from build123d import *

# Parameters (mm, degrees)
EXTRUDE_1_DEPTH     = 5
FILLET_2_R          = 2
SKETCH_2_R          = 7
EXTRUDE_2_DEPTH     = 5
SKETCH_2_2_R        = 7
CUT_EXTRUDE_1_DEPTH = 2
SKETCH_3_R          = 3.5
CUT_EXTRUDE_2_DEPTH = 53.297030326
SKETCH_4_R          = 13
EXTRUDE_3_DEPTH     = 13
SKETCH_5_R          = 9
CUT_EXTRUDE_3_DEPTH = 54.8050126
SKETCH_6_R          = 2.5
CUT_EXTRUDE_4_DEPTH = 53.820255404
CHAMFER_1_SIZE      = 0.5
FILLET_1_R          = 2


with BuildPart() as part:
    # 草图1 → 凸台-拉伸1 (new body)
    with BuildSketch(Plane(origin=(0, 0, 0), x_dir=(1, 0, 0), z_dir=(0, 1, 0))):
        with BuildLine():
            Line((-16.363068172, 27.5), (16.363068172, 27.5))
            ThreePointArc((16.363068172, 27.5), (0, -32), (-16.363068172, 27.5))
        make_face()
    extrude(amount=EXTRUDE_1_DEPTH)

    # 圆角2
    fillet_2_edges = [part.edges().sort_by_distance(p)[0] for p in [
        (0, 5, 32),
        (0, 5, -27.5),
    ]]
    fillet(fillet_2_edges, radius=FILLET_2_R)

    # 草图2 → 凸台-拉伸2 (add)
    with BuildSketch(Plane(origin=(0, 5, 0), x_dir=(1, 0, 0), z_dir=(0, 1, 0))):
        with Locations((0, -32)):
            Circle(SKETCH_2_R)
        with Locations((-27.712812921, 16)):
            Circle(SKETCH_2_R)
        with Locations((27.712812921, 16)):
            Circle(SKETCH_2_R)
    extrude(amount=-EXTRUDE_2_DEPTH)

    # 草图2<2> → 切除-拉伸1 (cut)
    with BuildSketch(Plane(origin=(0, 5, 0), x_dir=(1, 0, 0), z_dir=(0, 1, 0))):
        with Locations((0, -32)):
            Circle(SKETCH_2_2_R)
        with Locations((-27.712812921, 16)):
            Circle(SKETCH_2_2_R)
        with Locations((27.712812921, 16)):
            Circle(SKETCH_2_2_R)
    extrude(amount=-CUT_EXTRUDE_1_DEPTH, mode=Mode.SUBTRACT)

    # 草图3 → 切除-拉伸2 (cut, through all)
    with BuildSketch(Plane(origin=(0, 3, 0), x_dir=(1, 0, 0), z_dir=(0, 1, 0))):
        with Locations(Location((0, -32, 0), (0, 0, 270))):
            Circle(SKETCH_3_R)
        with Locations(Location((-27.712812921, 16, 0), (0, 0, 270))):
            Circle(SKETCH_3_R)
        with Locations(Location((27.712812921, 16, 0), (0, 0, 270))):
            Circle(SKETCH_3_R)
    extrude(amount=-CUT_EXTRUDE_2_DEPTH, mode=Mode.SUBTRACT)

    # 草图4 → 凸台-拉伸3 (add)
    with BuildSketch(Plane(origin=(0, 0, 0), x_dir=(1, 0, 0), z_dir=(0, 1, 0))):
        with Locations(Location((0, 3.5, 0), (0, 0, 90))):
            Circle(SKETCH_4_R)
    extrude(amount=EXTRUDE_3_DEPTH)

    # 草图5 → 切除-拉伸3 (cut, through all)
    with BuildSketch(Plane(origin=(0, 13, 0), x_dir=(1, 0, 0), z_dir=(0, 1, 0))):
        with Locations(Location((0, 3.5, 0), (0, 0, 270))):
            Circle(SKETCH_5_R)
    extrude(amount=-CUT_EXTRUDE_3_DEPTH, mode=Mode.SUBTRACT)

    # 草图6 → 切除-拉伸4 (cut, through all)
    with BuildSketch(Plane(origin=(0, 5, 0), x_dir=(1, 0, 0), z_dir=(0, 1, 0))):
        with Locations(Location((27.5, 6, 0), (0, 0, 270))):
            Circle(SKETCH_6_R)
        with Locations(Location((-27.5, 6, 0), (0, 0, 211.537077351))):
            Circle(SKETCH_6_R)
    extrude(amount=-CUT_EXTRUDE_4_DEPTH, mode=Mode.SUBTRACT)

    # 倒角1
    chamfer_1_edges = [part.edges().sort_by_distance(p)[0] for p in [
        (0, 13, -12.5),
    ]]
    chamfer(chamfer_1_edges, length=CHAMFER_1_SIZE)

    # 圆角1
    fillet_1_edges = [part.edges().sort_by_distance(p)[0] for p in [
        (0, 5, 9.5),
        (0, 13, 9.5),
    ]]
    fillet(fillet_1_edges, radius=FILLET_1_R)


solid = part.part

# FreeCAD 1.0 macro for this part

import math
import FreeCAD as App
import Part
import Sketcher
from FreeCAD import Vector
Q = App.Units.Quantity


def edges_at(feature, points):
    """Names of the edges that pass closest to the given points."""
    edges = feature.Shape.Edges
    near = lambda p: min(range(len(edges)), key=lambda i: edges[i].distToShape(Part.Vertex(*p))[0])
    return sorted({f"Edge{near(p) + 1}" for p in points})

doc = App.newDocument("Part")
params = doc.addObject("Spreadsheet::Sheet", "Params")
for row, (alias, value) in enumerate([
    ("sketch1_radius", "32 mm"),
    ("pad1_length", "5 mm"),
    ("fillet_radius", "2 mm"),
    ("sketch2_diameter", "14 mm"),
    ("pad2_length", "5 mm"),
    ("sketch3_diameter", "14 mm"),
    ("pocket1_length", "2 mm"),
    ("sketch4_diameter", "7 mm"),
    ("sketch5_diameter", "26 mm"),
    ("pad3_length", "13 mm"),
    ("sketch6_diameter", "18 mm"),
    ("sketch7_diameter", "5 mm"),
    ("chamfer_size", "0.5 mm"),
    ("fillet2_radius", "2 mm"),
], start=1):
    params.set(f"A{row}", alias)
    params.set(f"B{row}", "=" + value)
    params.setAlias(f"B{row}", alias)

body = doc.addObject("PartDesign::Body", "Body")

sketch1 = doc.addObject("Sketcher::SketchObject", "Sketch")
body.addObject(sketch1)
sketch1.AttachmentSupport = (doc.XZ_Plane, [""])
sketch1.MapMode = "FlatFace"
sketch1.addGeometry(Part.LineSegment(Vector(16.363068, -27.5, 0), Vector(-16.363068, -27.5, 0)), False)
sketch1.addGeometry(Part.ArcOfCircle(Part.Circle(Vector(0, 0, 0), Vector(0, 0, 1), 32), math.radians(-59.24648), math.radians(239.24648)), False)
sketch1.addConstraint(Sketcher.Constraint("Coincident", 0, 1, 1, 1))
sketch1.addConstraint(Sketcher.Constraint("Coincident", 1, 2, 0, 2))
sketch1.addConstraint(Sketcher.Constraint("Horizontal", 0))
sketch1.addConstraint(Sketcher.Constraint("Coincident", 1, 3, -1, 1))
sketch1.addConstraint(Sketcher.Constraint("Radius", 1, Q("32 mm")))
sketch1.addConstraint(Sketcher.Constraint("DistanceY", 0, 1, -1, 1, Q("27.5 mm")))
sketch1.setExpression("Constraints[4]", "Params.sketch1_radius")
pad1 = doc.addObject("PartDesign::Pad", "Pad")
body.addObject(pad1)
pad1.Profile = sketch1
pad1.setExpression("Length", "Params.pad1_length")
pad1.Reversed = True
doc.recompute()

fillet = doc.addObject("PartDesign::Fillet", "Fillet")
body.addObject(fillet)
fillet.Base = (pad1, edges_at(pad1, [(0, 5, 32), (0, 5, -27.5)]))
fillet.setExpression("Radius", "Params.fillet_radius")

sketch2 = doc.addObject("Sketcher::SketchObject", "Sketch001")
body.addObject(sketch2)
sketch2.AttachmentSupport = (doc.XZ_Plane, [""])
sketch2.MapMode = "FlatFace"
sketch2.AttachmentOffset = App.Placement(Vector(0, 0, -5), App.Rotation())
sketch2.addGeometry(Part.Circle(Vector(0, 32, 0), Vector(0, 0, 1), 7), False)
sketch2.addGeometry(Part.Circle(Vector(-27.712813, -16, 0), Vector(0, 0, 1), 7), False)
sketch2.addGeometry(Part.Circle(Vector(27.712813, -16, 0), Vector(0, 0, 1), 7), False)
sketch2.addConstraint(Sketcher.Constraint("Equal", 0, 1))
sketch2.addConstraint(Sketcher.Constraint("Equal", 1, 2))
sketch2.addConstraint(Sketcher.Constraint("Symmetric", 1, 3, 2, 3, -2))
sketch2.addConstraint(Sketcher.Constraint("PointOnObject", 0, 3, -2))
sketch2.addConstraint(Sketcher.Constraint("Diameter", 0, Q("14 mm")))
sketch2.addConstraint(Sketcher.Constraint("DistanceY", -1, 1, 0, 3, Q("32 mm")))
sketch2.addConstraint(Sketcher.Constraint("DistanceY", 1, 3, -1, 1, Q("16 mm")))
sketch2.addConstraint(Sketcher.Constraint("DistanceX", 1, 3, -1, 1, Q("27.712813 mm")))
sketch2.setExpression("Constraints[4]", "Params.sketch2_diameter")
pad2 = doc.addObject("PartDesign::Pad", "Pad001")
body.addObject(pad2)
pad2.Profile = sketch2
pad2.setExpression("Length", "Params.pad2_length")

sketch3 = doc.addObject("Sketcher::SketchObject", "Sketch002")
body.addObject(sketch3)
sketch3.AttachmentSupport = (doc.XZ_Plane, [""])
sketch3.MapMode = "FlatFace"
sketch3.AttachmentOffset = App.Placement(Vector(0, 0, -5), App.Rotation())
sketch3.addGeometry(Part.Circle(Vector(0, 32, 0), Vector(0, 0, 1), 7), False)
sketch3.addGeometry(Part.Circle(Vector(-27.712813, -16, 0), Vector(0, 0, 1), 7), False)
sketch3.addGeometry(Part.Circle(Vector(27.712813, -16, 0), Vector(0, 0, 1), 7), False)
sketch3.addConstraint(Sketcher.Constraint("Equal", 0, 1))
sketch3.addConstraint(Sketcher.Constraint("Equal", 1, 2))
sketch3.addConstraint(Sketcher.Constraint("Symmetric", 1, 3, 2, 3, -2))
sketch3.addConstraint(Sketcher.Constraint("PointOnObject", 0, 3, -2))
sketch3.addConstraint(Sketcher.Constraint("Diameter", 0, Q("14 mm")))
sketch3.addConstraint(Sketcher.Constraint("DistanceY", -1, 1, 0, 3, Q("32 mm")))
sketch3.addConstraint(Sketcher.Constraint("DistanceY", 1, 3, -1, 1, Q("16 mm")))
sketch3.addConstraint(Sketcher.Constraint("DistanceX", 1, 3, -1, 1, Q("27.712813 mm")))
sketch3.setExpression("Constraints[4]", "Params.sketch3_diameter")
pocket1 = doc.addObject("PartDesign::Pocket", "Pocket")
body.addObject(pocket1)
pocket1.Profile = sketch3
pocket1.setExpression("Length", "Params.pocket1_length")
pocket1.Reversed = True

sketch4 = doc.addObject("Sketcher::SketchObject", "Sketch003")
body.addObject(sketch4)
sketch4.AttachmentSupport = (doc.XZ_Plane, [""])
sketch4.MapMode = "FlatFace"
sketch4.AttachmentOffset = App.Placement(Vector(0, 0, -3), App.Rotation())
sketch4.addGeometry(Part.Circle(Vector(0, 32, 0), Vector(0, 0, 1), 3.5), False)
sketch4.addGeometry(Part.Circle(Vector(-27.712813, -16, 0), Vector(0, 0, 1), 3.5), False)
sketch4.addGeometry(Part.Circle(Vector(27.712813, -16, 0), Vector(0, 0, 1), 3.5), False)
sketch4.addConstraint(Sketcher.Constraint("Equal", 0, 1))
sketch4.addConstraint(Sketcher.Constraint("Equal", 1, 2))
sketch4.addConstraint(Sketcher.Constraint("Symmetric", 1, 3, 2, 3, -2))
sketch4.addConstraint(Sketcher.Constraint("PointOnObject", 0, 3, -2))
sketch4.addConstraint(Sketcher.Constraint("Diameter", 0, Q("7 mm")))
sketch4.addConstraint(Sketcher.Constraint("DistanceY", -1, 1, 0, 3, Q("32 mm")))
sketch4.addConstraint(Sketcher.Constraint("DistanceY", 1, 3, -1, 1, Q("16 mm")))
sketch4.addConstraint(Sketcher.Constraint("DistanceX", 1, 3, -1, 1, Q("27.712813 mm")))
sketch4.setExpression("Constraints[4]", "Params.sketch4_diameter")
pocket2 = doc.addObject("PartDesign::Pocket", "Pocket001")
body.addObject(pocket2)
pocket2.Profile = sketch4
pocket2.Type = "ThroughAll"
pocket2.Reversed = True

sketch5 = doc.addObject("Sketcher::SketchObject", "Sketch004")
body.addObject(sketch5)
sketch5.AttachmentSupport = (doc.XZ_Plane, [""])
sketch5.MapMode = "FlatFace"
sketch5.addGeometry(Part.Circle(Vector(0, -3.5, 0), Vector(0, 0, 1), 13), False)
sketch5.addConstraint(Sketcher.Constraint("PointOnObject", 0, 3, -2))
sketch5.addConstraint(Sketcher.Constraint("Diameter", 0, Q("26 mm")))
sketch5.addConstraint(Sketcher.Constraint("DistanceY", 0, 3, -1, 1, Q("3.5 mm")))
sketch5.setExpression("Constraints[1]", "Params.sketch5_diameter")
pad3 = doc.addObject("PartDesign::Pad", "Pad002")
body.addObject(pad3)
pad3.Profile = sketch5
pad3.setExpression("Length", "Params.pad3_length")
pad3.Reversed = True

sketch6 = doc.addObject("Sketcher::SketchObject", "Sketch005")
body.addObject(sketch6)
sketch6.AttachmentSupport = (doc.XZ_Plane, [""])
sketch6.MapMode = "FlatFace"
sketch6.AttachmentOffset = App.Placement(Vector(0, 0, -13), App.Rotation())
sketch6.addGeometry(Part.Circle(Vector(0, -3.5, 0), Vector(0, 0, 1), 9), False)
sketch6.addConstraint(Sketcher.Constraint("PointOnObject", 0, 3, -2))
sketch6.addConstraint(Sketcher.Constraint("Diameter", 0, Q("18 mm")))
sketch6.addConstraint(Sketcher.Constraint("DistanceY", 0, 3, -1, 1, Q("3.5 mm")))
sketch6.setExpression("Constraints[1]", "Params.sketch6_diameter")
pocket3 = doc.addObject("PartDesign::Pocket", "Pocket002")
body.addObject(pocket3)
pocket3.Profile = sketch6
pocket3.Type = "ThroughAll"
pocket3.Reversed = True

sketch7 = doc.addObject("Sketcher::SketchObject", "Sketch006")
body.addObject(sketch7)
sketch7.AttachmentSupport = (doc.XZ_Plane, [""])
sketch7.MapMode = "FlatFace"
sketch7.AttachmentOffset = App.Placement(Vector(0, 0, -5), App.Rotation())
sketch7.addGeometry(Part.Circle(Vector(27.5, -6, 0), Vector(0, 0, 1), 2.5), False)
sketch7.addGeometry(Part.Circle(Vector(-27.5, -6, 0), Vector(0, 0, 1), 2.5), False)
sketch7.addConstraint(Sketcher.Constraint("Equal", 0, 1))
sketch7.addConstraint(Sketcher.Constraint("Symmetric", 0, 3, 1, 3, -2))
sketch7.addConstraint(Sketcher.Constraint("Diameter", 0, Q("5 mm")))
sketch7.addConstraint(Sketcher.Constraint("DistanceY", 0, 3, -1, 1, Q("6 mm")))
sketch7.addConstraint(Sketcher.Constraint("DistanceX", 1, 3, 0, 3, Q("55 mm")))
sketch7.setExpression("Constraints[2]", "Params.sketch7_diameter")
pocket4 = doc.addObject("PartDesign::Pocket", "Pocket003")
body.addObject(pocket4)
pocket4.Profile = sketch7
pocket4.Type = "ThroughAll"
pocket4.Reversed = True
doc.recompute()

chamfer = doc.addObject("PartDesign::Chamfer", "Chamfer")
body.addObject(chamfer)
chamfer.Base = (pocket4, edges_at(pocket4, [(0, 13, -12.5)]))
chamfer.setExpression("Size", "Params.chamfer_size")
doc.recompute()

fillet2 = doc.addObject("PartDesign::Fillet", "Fillet001")
body.addObject(fillet2)
fillet2.Base = (chamfer, edges_at(chamfer, [(0, 5, 9.5), (0, 13, 9.5)]))
fillet2.setExpression("Radius", "Params.fillet2_radius")

doc.recompute()
